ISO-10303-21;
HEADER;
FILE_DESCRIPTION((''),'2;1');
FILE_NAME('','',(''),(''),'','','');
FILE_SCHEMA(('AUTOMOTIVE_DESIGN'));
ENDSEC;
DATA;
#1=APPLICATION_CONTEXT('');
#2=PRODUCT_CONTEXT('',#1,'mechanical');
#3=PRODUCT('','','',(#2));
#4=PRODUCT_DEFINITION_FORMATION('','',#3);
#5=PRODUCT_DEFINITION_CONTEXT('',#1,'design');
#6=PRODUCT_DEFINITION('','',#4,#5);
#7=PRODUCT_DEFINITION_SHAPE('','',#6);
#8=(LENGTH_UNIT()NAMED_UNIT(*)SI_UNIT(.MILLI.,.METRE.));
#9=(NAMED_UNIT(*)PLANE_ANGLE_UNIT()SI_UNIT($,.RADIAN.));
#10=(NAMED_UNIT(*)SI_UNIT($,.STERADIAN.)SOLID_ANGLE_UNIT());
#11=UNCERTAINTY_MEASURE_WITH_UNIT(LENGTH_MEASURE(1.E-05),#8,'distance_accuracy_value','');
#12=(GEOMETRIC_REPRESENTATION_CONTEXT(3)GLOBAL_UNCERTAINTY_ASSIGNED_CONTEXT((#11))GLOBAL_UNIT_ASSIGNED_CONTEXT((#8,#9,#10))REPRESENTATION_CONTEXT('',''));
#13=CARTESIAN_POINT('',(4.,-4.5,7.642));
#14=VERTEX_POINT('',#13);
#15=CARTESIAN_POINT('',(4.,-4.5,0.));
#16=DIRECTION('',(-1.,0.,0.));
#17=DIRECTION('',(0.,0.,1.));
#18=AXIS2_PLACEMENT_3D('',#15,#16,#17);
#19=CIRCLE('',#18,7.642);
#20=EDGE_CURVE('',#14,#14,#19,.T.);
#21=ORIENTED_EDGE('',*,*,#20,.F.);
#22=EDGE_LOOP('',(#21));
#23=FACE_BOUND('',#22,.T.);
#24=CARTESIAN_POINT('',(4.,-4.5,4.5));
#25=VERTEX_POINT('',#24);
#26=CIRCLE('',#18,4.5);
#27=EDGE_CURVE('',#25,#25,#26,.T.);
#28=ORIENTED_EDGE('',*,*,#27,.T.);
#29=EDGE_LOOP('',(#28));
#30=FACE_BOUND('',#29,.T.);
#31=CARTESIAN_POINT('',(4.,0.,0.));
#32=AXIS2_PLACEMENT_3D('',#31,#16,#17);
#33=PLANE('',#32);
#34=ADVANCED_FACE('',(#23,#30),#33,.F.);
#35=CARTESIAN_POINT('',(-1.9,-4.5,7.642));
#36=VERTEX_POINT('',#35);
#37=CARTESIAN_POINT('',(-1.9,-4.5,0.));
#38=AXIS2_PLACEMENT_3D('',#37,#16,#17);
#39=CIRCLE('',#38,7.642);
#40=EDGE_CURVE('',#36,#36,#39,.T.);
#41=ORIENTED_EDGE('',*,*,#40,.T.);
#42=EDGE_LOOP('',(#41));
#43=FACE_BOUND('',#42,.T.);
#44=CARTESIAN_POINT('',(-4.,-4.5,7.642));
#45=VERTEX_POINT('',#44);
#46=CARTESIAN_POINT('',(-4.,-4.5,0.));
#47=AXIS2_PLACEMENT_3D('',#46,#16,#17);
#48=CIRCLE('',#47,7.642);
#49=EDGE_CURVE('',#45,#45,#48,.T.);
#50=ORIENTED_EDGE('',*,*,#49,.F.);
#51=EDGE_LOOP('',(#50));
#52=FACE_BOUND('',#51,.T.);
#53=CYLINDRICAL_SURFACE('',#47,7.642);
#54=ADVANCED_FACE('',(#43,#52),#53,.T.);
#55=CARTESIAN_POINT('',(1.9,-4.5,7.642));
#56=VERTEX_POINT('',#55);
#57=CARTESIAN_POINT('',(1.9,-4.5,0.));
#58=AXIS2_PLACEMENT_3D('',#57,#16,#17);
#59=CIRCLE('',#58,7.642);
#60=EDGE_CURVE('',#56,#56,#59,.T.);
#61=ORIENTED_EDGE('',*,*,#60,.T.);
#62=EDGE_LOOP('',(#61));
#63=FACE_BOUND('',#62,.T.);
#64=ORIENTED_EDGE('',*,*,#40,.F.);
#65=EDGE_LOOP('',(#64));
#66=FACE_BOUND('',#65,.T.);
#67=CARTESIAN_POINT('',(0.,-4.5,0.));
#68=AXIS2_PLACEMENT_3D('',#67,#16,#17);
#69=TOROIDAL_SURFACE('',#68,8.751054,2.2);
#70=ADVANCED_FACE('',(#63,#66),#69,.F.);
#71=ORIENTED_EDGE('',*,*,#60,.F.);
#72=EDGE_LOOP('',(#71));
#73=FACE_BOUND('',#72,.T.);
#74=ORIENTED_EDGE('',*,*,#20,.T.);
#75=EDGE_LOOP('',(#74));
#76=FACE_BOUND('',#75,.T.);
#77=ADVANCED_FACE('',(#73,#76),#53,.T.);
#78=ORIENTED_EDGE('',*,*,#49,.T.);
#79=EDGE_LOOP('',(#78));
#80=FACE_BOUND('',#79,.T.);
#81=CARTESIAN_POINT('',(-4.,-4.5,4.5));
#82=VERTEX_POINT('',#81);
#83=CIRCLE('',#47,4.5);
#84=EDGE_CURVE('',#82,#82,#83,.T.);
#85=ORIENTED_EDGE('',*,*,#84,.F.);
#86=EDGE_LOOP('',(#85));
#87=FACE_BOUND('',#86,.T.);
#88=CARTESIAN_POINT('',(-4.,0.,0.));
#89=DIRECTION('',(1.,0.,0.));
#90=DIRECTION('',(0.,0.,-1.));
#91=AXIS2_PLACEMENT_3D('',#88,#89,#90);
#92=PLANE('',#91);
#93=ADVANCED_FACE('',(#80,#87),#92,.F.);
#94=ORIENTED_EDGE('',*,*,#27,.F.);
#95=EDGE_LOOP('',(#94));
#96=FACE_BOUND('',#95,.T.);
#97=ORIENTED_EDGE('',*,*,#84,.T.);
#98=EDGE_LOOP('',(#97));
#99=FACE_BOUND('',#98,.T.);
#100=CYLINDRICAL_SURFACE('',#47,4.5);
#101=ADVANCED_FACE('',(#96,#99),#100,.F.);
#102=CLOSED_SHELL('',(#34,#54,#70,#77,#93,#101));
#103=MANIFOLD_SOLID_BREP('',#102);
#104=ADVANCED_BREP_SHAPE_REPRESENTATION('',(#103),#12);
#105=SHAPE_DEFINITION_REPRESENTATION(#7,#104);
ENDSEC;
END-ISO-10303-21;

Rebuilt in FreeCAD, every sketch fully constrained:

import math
import FreeCAD as App
import Part
import Sketcher

doc = App.newDocument("Part")
body = doc.addObject("PartDesign::Body", "Body")

sketch1 = doc.addObject("Sketcher::SketchObject", "Sketch")
body.addObject(sketch1)
sketch1.AttachmentSupport = (doc.XY_Plane, [""])
sketch1.MapMode = "FlatFace"
sketch1.addGeometry([
    Part.LineSegment(App.Vector(4, 0, 0), App.Vector(4, 3.1, 0)),
    Part.LineSegment(App.Vector(4, 3.1, 0), App.Vector(1.9, 3.1, 0)),
    Part.ArcOfCircle(Part.Circle(App.Vector(0, 4.3, 0), App.Vector(0, 0, 1), 2.2), math.radians(-150), math.radians(-30)),
    Part.LineSegment(App.Vector(-1.9, 3.1, 0), App.Vector(-4, 3.1, 0)),
    Part.LineSegment(App.Vector(-4, 3.1, 0), App.Vector(-4, 0, 0)),
    Part.LineSegment(App.Vector(-4, 0, 0), App.Vector(4, 0, 0)),
], False)
sketch1.addGeometry(Part.LineSegment(App.Vector(-4, -4.5, 0), App.Vector(4, -4.5, 0)), True)
sketch1.addConstraint([
    Sketcher.Constraint("Coincident", 0, 2, 1, 1),
    Sketcher.Constraint("Coincident", 1, 2, 2, 2),
    Sketcher.Constraint("Coincident", 2, 1, 3, 1),
    Sketcher.Constraint("Coincident", 3, 2, 4, 1),
    Sketcher.Constraint("Coincident", 4, 2, 5, 1),
    Sketcher.Constraint("Coincident", 5, 2, 0, 1),
    Sketcher.Constraint("Vertical", 0),
    Sketcher.Constraint("Horizontal", 1),
    Sketcher.Constraint("Horizontal", 3),
    Sketcher.Constraint("Vertical", 4),
    Sketcher.Constraint("Horizontal", 5),
    Sketcher.Constraint("Horizontal", 6),
    Sketcher.Constraint("Symmetric", 4, 2, 5, 2, -1, 1),
    Sketcher.Constraint("Symmetric", 1, 2, 2, 1, -2),
    Sketcher.Constraint("Vertical", 4, 2, 6, 1),
    Sketcher.Constraint("Vertical", 5, 2, 6, 2),
    Sketcher.Constraint("Radius", 2, 2.2),
    Sketcher.Constraint("DistanceX", 5, 1, 5, 2, 8.0),
    Sketcher.Constraint("DistanceX", 1, 2, 1, 1, 2.1),
    Sketcher.Constraint("DistanceY", 6, 1, -1, 1, 4.5),
    Sketcher.Constraint("DistanceY", 0, 1, 0, 2, 3.142),
])
revolution = doc.addObject("PartDesign::Revolution", "Revolution")
body.addObject(revolution)
revolution.Profile = sketch1
revolution.ReferenceAxis = (sketch1, ["Axis0"])
revolution.Angle = 360

doc.recompute()
